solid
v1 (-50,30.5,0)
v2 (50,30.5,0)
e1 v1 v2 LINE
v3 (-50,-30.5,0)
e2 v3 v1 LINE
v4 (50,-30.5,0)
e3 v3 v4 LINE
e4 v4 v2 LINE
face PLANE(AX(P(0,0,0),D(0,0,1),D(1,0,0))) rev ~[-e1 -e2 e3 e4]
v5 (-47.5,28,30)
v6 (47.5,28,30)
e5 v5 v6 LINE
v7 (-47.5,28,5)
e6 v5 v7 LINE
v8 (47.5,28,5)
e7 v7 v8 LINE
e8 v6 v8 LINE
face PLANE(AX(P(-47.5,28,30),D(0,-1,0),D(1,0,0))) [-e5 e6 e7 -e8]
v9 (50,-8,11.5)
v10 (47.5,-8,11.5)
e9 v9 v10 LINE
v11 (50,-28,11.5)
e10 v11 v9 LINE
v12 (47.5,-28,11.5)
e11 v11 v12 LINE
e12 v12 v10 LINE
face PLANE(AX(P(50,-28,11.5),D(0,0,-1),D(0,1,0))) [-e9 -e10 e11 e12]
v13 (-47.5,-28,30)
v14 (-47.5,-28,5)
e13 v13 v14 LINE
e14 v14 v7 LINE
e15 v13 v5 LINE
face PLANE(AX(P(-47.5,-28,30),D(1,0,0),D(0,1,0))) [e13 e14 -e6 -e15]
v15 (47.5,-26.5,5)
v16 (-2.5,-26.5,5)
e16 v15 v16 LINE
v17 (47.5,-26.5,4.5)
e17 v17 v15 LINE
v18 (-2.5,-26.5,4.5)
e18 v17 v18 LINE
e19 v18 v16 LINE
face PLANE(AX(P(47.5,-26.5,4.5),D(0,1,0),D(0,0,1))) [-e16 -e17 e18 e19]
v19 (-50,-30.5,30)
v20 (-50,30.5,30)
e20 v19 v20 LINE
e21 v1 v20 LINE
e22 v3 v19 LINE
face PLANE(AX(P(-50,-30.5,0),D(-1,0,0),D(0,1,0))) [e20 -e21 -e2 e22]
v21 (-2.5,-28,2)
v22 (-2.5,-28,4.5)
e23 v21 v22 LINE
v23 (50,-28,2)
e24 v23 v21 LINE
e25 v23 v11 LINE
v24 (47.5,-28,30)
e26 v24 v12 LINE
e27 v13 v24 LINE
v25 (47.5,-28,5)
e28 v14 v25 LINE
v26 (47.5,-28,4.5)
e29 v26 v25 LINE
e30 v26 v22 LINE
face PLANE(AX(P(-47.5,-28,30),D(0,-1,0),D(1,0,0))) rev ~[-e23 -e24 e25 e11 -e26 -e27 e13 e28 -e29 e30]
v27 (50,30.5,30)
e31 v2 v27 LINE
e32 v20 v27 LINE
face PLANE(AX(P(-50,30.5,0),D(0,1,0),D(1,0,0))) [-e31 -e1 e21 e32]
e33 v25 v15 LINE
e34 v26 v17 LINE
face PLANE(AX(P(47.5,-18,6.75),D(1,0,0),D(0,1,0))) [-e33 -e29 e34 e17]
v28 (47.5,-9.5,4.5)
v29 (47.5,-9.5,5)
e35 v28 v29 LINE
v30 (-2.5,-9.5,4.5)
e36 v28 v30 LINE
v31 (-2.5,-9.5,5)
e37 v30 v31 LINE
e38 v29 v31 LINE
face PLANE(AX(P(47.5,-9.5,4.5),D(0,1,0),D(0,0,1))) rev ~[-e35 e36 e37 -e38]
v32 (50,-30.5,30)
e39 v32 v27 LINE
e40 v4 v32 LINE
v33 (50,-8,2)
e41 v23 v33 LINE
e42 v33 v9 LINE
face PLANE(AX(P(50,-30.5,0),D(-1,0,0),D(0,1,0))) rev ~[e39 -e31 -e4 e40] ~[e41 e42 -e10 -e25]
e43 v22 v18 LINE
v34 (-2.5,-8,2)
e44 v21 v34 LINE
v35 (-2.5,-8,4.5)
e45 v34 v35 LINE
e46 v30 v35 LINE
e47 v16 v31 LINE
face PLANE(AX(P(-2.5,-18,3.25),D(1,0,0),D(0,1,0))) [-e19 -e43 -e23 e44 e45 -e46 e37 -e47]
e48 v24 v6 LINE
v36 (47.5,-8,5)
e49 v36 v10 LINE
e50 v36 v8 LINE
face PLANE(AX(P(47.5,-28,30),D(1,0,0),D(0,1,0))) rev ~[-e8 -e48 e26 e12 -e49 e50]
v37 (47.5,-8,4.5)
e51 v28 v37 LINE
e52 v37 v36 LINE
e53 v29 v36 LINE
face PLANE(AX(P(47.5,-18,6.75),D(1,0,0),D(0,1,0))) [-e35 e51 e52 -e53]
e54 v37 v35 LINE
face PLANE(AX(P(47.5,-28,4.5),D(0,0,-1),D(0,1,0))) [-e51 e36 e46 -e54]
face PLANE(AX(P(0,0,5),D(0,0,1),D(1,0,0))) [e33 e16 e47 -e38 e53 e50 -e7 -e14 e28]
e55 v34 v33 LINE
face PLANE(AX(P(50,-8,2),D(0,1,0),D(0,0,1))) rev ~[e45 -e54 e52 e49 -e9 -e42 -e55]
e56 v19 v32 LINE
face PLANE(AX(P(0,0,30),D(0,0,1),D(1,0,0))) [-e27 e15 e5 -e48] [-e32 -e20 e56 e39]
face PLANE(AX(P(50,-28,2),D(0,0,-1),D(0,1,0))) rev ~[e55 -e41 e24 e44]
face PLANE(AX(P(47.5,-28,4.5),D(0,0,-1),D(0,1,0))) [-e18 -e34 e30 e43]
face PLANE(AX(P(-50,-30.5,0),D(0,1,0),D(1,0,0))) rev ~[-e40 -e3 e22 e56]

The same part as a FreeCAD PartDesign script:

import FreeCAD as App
import Part
import Sketcher


def add_polygon(sketch, points):
    """Adds a closed chain of lines whose ends are joined by coincident constraints."""
    first, n = sketch.GeometryCount, len(points)
    for a, b in zip(points, points[1:] + points[:1]):
        sketch.addGeometry(Part.LineSegment(App.Vector(*a, 0), App.Vector(*b, 0)), False)
    for i in range(n):
        sketch.addConstraint(Sketcher.Constraint("Coincident", first + i, 2, first + (i + 1) % n, 1))

doc = App.newDocument("Part")
params = doc.addObject("Spreadsheet::Sheet", "Params")
for row, (alias, value) in enumerate([
    ("sketch1_width", "100 mm"),
    ("sketch1_height", "61 mm"),
    ("pad1_length", "30 mm"),
    ("sketch2_width", "95 mm"),
    ("sketch2_height", "56 mm"),
    ("pocket1_length", "25 mm"),
    ("sketch3_width", "20 mm"),
    ("sketch3_height", "9.5 mm"),
    ("pocket2_length", "2.5 mm"),
    ("sketch4_width", "20 mm"),
    ("sketch4_height", "2.5 mm"),
    ("pocket3_length", "50 mm"),
    ("sketch5_width", "17 mm"),
    ("sketch5_height", "0.5 mm"),
    ("pocket4_length", "50 mm"),
], start=1):
    params.set(f"A{row}", alias)
    params.set(f"B{row}", "=" + value)
    params.setAlias(f"B{row}", alias)

body = doc.addObject("PartDesign::Body", "Body")

sketch1 = body.newObject("Sketcher::SketchObject", "Sketch")
sketch1.AttachmentSupport = (doc.getObject("XY_Plane"), [""])
sketch1.MapMode = "FlatFace"
add_polygon(sketch1, [(-50, 30), (-50, -30), (50, -30), (50, 30)])
sketch1.addConstraint([
    Sketcher.Constraint("Vertical", 0),
    Sketcher.Constraint("Horizontal", 1),
    Sketcher.Constraint("Vertical", 2),
    Sketcher.Constraint("Horizontal", 3),
    Sketcher.Constraint("Symmetric", 0, 2, 2, 2, -1, 1),
    Sketcher.Constraint("DistanceX", 1, 1, 1, 2, 100.0),
    Sketcher.Constraint("DistanceY", 0, 2, 0, 1, 61.0),
])
sketch1.setExpression("Constraints[9]", "Params.sketch1_width")
sketch1.setExpression("Constraints[10]", "Params.sketch1_height")
pad1 = body.newObject("PartDesign::Pad", "Pad")
pad1.Profile = sketch1
pad1.setExpression("Length", "Params.pad1_length")

sketch2 = body.newObject("Sketcher::SketchObject", "Sketch001")
sketch2.AttachmentSupport = (doc.getObject("XY_Plane"), [""])
sketch2.MapMode = "FlatFace"
sketch2.AttachmentOffset = App.Placement(App.Vector(0, 0, 30), App.Rotation())
add_polygon(sketch2, [(-48, 28), (-48, -28), (48, -28), (48, 28)])
sketch2.addConstraint([
    Sketcher.Constraint("Vertical", 0),
    Sketcher.Constraint("Horizontal", 1),
    Sketcher.Constraint("Vertical", 2),
    Sketcher.Constraint("Horizontal", 3),
    Sketcher.Constraint("Symmetric", 0, 2, 2, 2, -1, 1),
    Sketcher.Constraint("DistanceX", 1, 1, 1, 2, 95.0),
    Sketcher.Constraint("DistanceY", 0, 2, 0, 1, 56.0),
])
sketch2.setExpression("Constraints[9]", "Params.sketch2_width")
sketch2.setExpression("Constraints[10]", "Params.sketch2_height")
pocket1 = body.newObject("PartDesign::Pocket", "Pocket")
pocket1.Profile = sketch2
pocket1.setExpression("Length", "Params.pocket1_length")

sketch3 = body.newObject("Sketcher::SketchObject", "Sketch002")
sketch3.AttachmentSupport = (doc.getObject("YZ_Plane"), [""])
sketch3.MapMode = "FlatFace"
sketch3.AttachmentOffset = App.Placement(App.Vector(0, 0, 50), App.Rotation())
add_polygon(sketch3, [(-28, 12), (-28, 2), (-8, 2), (-8, 12)])
sketch3.addConstraint([
    Sketcher.Constraint("Vertical", 0),
    Sketcher.Constraint("Horizontal", 1),
    Sketcher.Constraint("Vertical", 2),
    Sketcher.Constraint("Horizontal", 3),
    Sketcher.Constraint("DistanceX", 1, 1, 1, 2, 20.0),
    Sketcher.Constraint("DistanceY", 0, 2, 0, 1, 9.5),
    Sketcher.Constraint("DistanceX", 0, 2, -1, 1, 28.0),
    Sketcher.Constraint("DistanceY", -1, 1, 0, 2, 2.0),
])
sketch3.setExpression("Constraints[8]", "Params.sketch3_width")
sketch3.setExpression("Constraints[9]", "Params.sketch3_height")
pocket2 = body.newObject("PartDesign::Pocket", "Pocket001")
pocket2.Profile = sketch3
pocket2.setExpression("Length", "Params.pocket2_length")

sketch4 = body.newObject("Sketcher::SketchObject", "Sketch003")
sketch4.AttachmentSupport = (doc.getObject("YZ_Plane"), [""])
sketch4.MapMode = "FlatFace"
sketch4.AttachmentOffset = App.Placement(App.Vector(0, 0, 47.5), App.Rotation())
add_polygon(sketch4, [(-28, 4.5), (-28, 2), (-8, 2), (-8, 4.5)])
sketch4.addConstraint([
    Sketcher.Constraint("Vertical", 0),
    Sketcher.Constraint("Horizontal", 1),
    Sketcher.Constraint("Vertical", 2),
    Sketcher.Constraint("Horizontal", 3),
    Sketcher.Constraint("DistanceX", 1, 1, 1, 2, 20.0),
    Sketcher.Constraint("DistanceY", 0, 2, 0, 1, 2.5),
    Sketcher.Constraint("DistanceX", 0, 2, -1, 1, 28.0),
    Sketcher.Constraint("DistanceY", -1, 1, 0, 2, 2.0),
])
sketch4.setExpression("Constraints[8]", "Params.sketch4_width")
sketch4.setExpression("Constraints[9]", "Params.sketch4_height")
pocket3 = body.newObject("PartDesign::Pocket", "Pocket002")
pocket3.Profile = sketch4
pocket3.setExpression("Length", "Params.pocket3_length")

sketch5 = body.newObject("Sketcher::SketchObject", "Sketch004")
sketch5.AttachmentSupport = (doc.getObject("YZ_Plane"), [""])
sketch5.MapMode = "FlatFace"
sketch5.AttachmentOffset = App.Placement(App.Vector(0, 0, 47.5), App.Rotation())
add_polygon(sketch5, [(-26.5, 5), (-26.5, 4.5), (-9.5, 4.5), (-9.5, 5)])
sketch5.addConstraint([
    Sketcher.Constraint("Vertical", 0),
    Sketcher.Constraint("Horizontal", 1),
    Sketcher.Constraint("Vertical", 2),
    Sketcher.Constraint("Horizontal", 3),
    Sketcher.Constraint("DistanceX", 1, 1, 1, 2, 17.0),
    Sketcher.Constraint("DistanceY", 0, 2, 0, 1, 0.5),
    Sketcher.Constraint("DistanceY", -1, 1, 2, 2, 5.0),
    Sketcher.Constraint("DistanceX", 0, 2, -1, 1, 26.5),
])
sketch5.setExpression("Constraints[8]", "Params.sketch5_width")
sketch5.setExpression("Constraints[9]", "Params.sketch5_height")
pocket4 = body.newObject("PartDesign::Pocket", "Pocket003")
pocket4.Profile = sketch5
pocket4.setExpression("Length", "Params.pocket4_length")

doc.recompute()
